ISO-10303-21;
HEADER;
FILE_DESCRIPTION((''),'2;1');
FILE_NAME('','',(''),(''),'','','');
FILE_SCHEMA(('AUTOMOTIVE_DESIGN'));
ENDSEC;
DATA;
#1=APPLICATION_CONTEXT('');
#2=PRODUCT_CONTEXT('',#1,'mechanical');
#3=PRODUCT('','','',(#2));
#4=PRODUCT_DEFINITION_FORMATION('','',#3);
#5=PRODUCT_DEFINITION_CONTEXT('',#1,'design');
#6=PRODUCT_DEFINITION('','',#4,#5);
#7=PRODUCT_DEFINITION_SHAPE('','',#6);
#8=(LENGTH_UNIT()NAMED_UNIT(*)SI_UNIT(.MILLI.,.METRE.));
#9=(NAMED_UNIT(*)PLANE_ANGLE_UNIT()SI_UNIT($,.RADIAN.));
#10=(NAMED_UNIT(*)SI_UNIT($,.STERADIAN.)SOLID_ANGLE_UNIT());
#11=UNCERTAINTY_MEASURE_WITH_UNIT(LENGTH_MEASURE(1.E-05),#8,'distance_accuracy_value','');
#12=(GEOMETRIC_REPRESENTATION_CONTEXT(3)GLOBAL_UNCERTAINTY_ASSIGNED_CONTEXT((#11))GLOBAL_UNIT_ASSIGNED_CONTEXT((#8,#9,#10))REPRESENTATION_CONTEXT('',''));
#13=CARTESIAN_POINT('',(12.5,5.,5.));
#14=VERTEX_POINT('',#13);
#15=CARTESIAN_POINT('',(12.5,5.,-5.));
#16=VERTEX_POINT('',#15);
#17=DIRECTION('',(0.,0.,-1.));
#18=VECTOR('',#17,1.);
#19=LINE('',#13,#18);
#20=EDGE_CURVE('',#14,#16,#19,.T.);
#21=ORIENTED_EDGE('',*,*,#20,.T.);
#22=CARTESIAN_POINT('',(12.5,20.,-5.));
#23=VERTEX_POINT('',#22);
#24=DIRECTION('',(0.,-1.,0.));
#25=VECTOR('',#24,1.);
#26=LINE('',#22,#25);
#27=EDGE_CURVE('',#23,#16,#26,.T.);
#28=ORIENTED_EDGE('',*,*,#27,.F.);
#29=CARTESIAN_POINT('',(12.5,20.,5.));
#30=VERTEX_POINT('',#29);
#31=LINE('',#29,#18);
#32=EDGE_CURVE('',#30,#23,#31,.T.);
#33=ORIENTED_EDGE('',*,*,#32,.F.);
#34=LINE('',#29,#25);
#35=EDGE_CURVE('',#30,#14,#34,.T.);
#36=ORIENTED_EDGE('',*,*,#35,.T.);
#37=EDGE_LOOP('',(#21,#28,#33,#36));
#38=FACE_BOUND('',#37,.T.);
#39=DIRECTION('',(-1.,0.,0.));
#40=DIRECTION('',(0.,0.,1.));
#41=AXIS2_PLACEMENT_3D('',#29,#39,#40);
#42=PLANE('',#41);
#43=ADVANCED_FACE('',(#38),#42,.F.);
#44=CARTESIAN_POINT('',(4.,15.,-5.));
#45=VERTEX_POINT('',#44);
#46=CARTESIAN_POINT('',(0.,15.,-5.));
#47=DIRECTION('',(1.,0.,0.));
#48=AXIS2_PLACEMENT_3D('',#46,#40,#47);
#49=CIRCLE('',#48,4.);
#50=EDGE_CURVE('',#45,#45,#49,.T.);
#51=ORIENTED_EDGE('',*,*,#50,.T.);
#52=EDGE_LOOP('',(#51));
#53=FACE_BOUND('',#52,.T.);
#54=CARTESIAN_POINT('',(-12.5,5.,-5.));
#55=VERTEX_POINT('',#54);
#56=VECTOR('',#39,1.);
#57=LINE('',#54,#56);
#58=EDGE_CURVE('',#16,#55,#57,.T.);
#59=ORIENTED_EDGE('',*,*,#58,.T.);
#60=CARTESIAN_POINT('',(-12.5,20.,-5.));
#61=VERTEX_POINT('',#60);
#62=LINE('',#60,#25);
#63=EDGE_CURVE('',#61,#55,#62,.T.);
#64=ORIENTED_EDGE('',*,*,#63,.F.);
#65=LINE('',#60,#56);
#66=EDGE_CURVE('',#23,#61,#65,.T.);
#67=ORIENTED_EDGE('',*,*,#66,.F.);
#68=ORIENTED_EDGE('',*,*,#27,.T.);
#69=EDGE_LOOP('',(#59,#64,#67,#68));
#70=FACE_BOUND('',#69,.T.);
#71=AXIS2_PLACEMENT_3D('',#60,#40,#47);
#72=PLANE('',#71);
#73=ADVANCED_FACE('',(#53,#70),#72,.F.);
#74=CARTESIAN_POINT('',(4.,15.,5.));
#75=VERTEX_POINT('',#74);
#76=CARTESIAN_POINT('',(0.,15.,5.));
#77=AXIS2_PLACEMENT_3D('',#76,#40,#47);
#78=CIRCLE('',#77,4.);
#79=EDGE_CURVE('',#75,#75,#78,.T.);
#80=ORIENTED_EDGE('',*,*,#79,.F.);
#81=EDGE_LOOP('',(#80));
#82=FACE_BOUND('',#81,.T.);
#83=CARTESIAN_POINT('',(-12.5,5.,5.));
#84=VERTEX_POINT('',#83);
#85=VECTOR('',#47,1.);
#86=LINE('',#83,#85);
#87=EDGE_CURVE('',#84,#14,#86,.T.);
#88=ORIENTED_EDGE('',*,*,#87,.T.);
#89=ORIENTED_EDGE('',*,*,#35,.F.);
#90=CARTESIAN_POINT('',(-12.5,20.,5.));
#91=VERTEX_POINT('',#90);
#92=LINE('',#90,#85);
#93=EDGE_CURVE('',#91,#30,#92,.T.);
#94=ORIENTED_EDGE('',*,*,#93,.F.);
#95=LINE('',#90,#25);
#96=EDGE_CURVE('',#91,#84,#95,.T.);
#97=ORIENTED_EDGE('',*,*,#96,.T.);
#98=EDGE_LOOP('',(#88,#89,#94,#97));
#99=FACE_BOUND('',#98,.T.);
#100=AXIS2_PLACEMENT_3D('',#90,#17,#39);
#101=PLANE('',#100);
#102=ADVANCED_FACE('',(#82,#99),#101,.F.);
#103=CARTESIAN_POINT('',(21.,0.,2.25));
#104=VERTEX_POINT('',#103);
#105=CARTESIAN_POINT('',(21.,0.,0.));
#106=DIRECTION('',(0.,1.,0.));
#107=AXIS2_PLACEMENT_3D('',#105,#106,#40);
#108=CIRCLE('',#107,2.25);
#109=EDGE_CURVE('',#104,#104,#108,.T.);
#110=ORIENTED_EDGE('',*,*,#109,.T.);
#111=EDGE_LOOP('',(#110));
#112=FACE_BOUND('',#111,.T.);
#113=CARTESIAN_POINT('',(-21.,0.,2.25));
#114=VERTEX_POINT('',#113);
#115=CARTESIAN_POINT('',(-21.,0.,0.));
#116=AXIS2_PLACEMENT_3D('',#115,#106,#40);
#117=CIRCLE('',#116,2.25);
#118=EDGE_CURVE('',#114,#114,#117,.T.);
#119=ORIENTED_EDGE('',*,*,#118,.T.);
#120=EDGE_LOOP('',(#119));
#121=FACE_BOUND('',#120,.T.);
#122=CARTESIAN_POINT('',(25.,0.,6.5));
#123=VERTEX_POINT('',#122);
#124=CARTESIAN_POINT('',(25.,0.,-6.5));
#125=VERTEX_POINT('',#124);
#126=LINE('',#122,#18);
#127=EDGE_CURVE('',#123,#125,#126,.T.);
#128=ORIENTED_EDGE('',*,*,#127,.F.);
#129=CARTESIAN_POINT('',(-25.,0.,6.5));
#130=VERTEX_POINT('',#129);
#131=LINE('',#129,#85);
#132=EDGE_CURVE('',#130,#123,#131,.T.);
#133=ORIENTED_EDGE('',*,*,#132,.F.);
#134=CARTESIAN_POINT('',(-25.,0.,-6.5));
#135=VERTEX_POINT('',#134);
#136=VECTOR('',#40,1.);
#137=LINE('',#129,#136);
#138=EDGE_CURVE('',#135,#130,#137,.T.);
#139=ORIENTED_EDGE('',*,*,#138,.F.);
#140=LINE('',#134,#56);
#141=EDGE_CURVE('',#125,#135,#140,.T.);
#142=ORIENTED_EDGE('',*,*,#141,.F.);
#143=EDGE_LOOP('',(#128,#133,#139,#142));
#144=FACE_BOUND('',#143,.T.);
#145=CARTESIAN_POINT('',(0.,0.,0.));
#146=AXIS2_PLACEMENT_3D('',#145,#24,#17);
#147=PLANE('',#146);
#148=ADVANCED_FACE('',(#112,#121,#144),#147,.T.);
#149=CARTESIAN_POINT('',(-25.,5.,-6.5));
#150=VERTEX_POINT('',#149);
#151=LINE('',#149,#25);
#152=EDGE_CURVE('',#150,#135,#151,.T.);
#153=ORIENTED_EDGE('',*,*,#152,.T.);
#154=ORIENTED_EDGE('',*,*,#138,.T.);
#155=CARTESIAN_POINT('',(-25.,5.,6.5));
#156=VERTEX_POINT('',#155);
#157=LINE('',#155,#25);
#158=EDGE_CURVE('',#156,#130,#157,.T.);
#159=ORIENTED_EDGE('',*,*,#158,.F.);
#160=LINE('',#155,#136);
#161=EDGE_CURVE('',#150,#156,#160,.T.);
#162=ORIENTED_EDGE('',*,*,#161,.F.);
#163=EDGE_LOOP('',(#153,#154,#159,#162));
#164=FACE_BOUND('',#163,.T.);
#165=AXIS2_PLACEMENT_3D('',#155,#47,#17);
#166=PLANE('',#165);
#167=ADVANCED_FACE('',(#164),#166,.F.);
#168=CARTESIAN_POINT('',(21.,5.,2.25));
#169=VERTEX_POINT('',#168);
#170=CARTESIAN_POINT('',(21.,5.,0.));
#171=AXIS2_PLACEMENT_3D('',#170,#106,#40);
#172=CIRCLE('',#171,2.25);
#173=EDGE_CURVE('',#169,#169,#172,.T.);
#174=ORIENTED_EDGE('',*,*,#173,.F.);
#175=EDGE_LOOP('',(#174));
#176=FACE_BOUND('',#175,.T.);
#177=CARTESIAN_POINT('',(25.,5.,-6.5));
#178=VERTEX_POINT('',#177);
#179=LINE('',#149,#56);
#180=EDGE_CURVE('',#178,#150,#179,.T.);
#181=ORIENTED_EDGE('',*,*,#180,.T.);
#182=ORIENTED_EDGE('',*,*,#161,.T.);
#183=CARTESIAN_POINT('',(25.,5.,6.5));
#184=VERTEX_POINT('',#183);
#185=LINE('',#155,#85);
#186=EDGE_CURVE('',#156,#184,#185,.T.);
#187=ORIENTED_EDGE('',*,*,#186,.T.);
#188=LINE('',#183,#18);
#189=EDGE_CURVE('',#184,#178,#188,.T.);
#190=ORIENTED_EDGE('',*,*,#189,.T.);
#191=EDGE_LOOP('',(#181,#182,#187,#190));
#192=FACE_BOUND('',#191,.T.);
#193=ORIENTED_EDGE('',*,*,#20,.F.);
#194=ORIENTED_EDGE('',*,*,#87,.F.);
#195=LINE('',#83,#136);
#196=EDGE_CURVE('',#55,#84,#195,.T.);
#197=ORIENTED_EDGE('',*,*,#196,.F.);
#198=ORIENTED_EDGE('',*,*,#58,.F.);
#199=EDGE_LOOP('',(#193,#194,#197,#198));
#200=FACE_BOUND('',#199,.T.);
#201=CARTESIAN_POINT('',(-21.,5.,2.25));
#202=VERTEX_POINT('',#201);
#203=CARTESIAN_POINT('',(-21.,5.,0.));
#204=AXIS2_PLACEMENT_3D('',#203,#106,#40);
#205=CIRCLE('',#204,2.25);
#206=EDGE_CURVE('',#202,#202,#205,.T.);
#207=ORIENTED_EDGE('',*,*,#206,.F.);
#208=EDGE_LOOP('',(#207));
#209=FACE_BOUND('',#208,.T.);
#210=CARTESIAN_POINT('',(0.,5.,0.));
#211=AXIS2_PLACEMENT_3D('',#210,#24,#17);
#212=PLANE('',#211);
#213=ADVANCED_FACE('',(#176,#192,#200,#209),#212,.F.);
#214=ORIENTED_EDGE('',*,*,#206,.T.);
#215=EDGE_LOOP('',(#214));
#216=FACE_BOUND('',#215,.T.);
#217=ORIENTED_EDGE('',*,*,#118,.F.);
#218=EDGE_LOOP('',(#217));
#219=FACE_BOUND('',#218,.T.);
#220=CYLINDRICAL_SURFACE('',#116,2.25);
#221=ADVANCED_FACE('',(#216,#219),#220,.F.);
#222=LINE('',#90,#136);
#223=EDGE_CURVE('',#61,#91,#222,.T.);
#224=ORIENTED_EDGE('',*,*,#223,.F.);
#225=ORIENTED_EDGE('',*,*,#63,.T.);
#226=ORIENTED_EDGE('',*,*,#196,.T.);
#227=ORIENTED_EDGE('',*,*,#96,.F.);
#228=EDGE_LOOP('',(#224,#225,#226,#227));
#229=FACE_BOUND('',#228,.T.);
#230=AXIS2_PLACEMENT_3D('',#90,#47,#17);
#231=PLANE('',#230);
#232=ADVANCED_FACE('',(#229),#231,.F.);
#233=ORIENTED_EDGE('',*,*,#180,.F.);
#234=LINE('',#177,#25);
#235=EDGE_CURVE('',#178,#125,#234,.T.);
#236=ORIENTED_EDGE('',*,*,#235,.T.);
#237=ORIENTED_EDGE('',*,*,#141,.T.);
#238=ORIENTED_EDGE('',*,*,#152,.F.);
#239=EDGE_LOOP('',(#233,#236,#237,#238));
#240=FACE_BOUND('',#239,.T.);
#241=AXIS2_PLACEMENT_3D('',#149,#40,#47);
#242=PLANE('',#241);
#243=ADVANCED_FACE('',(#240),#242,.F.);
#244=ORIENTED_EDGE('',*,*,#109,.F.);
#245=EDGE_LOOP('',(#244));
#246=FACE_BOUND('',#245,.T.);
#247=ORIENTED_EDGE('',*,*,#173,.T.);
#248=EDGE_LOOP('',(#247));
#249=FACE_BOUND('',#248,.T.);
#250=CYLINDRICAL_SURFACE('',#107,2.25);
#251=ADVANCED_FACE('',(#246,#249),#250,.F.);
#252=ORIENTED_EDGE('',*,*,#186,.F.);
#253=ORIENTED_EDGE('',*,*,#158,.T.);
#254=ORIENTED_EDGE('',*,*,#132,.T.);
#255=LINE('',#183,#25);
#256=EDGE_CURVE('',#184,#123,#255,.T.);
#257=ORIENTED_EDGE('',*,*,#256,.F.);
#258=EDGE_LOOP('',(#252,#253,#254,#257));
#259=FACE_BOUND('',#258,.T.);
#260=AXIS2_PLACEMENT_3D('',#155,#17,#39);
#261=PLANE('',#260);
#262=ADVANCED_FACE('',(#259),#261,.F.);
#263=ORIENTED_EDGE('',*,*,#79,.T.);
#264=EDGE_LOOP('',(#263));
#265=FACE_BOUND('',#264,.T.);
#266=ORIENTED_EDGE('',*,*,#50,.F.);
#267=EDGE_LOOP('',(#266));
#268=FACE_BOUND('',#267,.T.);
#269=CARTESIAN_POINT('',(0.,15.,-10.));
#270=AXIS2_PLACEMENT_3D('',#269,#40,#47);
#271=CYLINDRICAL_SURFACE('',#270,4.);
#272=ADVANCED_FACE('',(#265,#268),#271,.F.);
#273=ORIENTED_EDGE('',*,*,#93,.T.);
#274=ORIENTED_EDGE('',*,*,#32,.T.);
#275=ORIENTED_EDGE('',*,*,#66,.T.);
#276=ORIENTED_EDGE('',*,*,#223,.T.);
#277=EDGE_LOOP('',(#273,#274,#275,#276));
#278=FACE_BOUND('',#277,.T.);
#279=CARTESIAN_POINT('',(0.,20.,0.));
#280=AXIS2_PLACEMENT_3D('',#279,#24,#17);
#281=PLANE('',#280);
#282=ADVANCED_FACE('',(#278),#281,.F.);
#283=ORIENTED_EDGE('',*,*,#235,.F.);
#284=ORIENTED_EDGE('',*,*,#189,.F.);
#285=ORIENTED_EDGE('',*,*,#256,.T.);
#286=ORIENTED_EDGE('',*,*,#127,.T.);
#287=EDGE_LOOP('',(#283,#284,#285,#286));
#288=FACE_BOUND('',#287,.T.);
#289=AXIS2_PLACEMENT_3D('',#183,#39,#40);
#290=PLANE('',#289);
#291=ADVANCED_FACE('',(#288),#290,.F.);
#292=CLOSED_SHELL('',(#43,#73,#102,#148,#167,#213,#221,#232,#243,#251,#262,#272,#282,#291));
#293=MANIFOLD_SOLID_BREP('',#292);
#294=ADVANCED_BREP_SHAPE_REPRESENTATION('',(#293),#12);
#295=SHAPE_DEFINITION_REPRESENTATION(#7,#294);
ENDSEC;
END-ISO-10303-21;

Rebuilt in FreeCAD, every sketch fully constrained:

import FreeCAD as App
import Part
import Sketcher


def add_polygon(sketch, points):
    """Adds a closed chain of lines whose ends are joined by coincident constraints."""
    first, n = sketch.GeometryCount, len(points)
    for a, b in zip(points, points[1:] + points[:1]):
        sketch.addGeometry(Part.LineSegment(App.Vector(*a, 0), App.Vector(*b, 0)), False)
    for i in range(n):
        sketch.addConstraint(Sketcher.Constraint("Coincident", first + i, 2, first + (i + 1) % n, 1))

doc = App.newDocument("Part")
body = doc.addObject("PartDesign::Body", "Body")

# Sketch on XZ plane
sketch1 = doc.addObject("Sketcher::SketchObject", "Sketch")
body.addObject(sketch1)
sketch1.AttachmentSupport = (doc.XZ_Plane, [""])
sketch1.MapMode = "FlatFace"
add_polygon(sketch1, [(-25, -6.5), (-25, 6.5), (25, 6.5), (25, -6.5)])  # lines 0-3
sketch1.addConstraint([
    Sketcher.Constraint("Vertical", 0),
    Sketcher.Constraint("Horizontal", 1),
    Sketcher.Constraint("Vertical", 2),
    Sketcher.Constraint("Horizontal", 3),
    Sketcher.Constraint("Symmetric", 0, 2, 2, 2, -1, 1),
    Sketcher.Constraint("DistanceX", 1, 1, 1, 2, 50.0),
    Sketcher.Constraint("DistanceY", 0, 1, 0, 2, 13.0),
])
pad1 = doc.addObject("PartDesign::Pad", "Pad")
body.addObject(pad1)
pad1.Profile = sketch1
pad1.Length = 5
pad1.Reversed = True

# Sketch on XZ plane
sketch2 = doc.addObject("Sketcher::SketchObject", "Sketch001")
body.addObject(sketch2)
sketch2.AttachmentSupport = (doc.XZ_Plane, [""])
sketch2.MapMode = "FlatFace"
sketch2.AttachmentOffset = App.Placement(App.Vector(0, 0, -5), App.Rotation())
sketch2.addGeometry([
    Part.Circle(App.Vector(-21, 0, 0), App.Vector(0, 0, 1), 2.25),
    Part.Circle(App.Vector(21, 0, 0), App.Vector(0, 0, 1), 2.25),
], False)
sketch2.addConstraint([
    Sketcher.Constraint("Equal", 0, 1),
    Sketcher.Constraint("Symmetric", 0, 3, 1, 3, -1, 1),
    Sketcher.Constraint("PointOnObject", 0, 3, -1),
    Sketcher.Constraint("Diameter", 0, 4.5),
    Sketcher.Constraint("DistanceX", 0, 3, -1, 1, 21.0),
])
pocket1 = doc.addObject("PartDesign::Pocket", "Pocket")
body.addObject(pocket1)
pocket1.Profile = sketch2
pocket1.Length = 5
pocket1.Reversed = True

# Sketch on XZ plane
sketch3 = doc.addObject("Sketcher::SketchObject", "Sketch002")
body.addObject(sketch3)
sketch3.AttachmentSupport = (doc.XZ_Plane, [""])
sketch3.MapMode = "FlatFace"
sketch3.AttachmentOffset = App.Placement(App.Vector(0, 0, -5), App.Rotation())
add_polygon(sketch3, [(-12.5, -5), (-12.5, 5), (12.5, 5), (12.5, -5)])  # lines 0-3
sketch3.addConstraint([
    Sketcher.Constraint("Vertical", 0),
    Sketcher.Constraint("Horizontal", 1),
    Sketcher.Constraint("Vertical", 2),
    Sketcher.Constraint("Horizontal", 3),
    Sketcher.Constraint("Symmetric", 0, 2, 2, 2, -1, 1),
    Sketcher.Constraint("DistanceX", 1, 1, 1, 2, 25.0),
    Sketcher.Constraint("DistanceY", 0, 1, 0, 2, 10.0),
])
pad2 = doc.addObject("PartDesign::Pad", "Pad001")
body.addObject(pad2)
pad2.Profile = sketch3
pad2.Length = 15
pad2.Reversed = True

# Sketch on XY plane
sketch4 = doc.addObject("Sketcher::SketchObject", "Sketch003")
body.addObject(sketch4)
sketch4.AttachmentSupport = (doc.XY_Plane, [""])
sketch4.MapMode = "FlatFace"
sketch4.AttachmentOffset = App.Placement(App.Vector(0, 0, 5), App.Rotation())
sketch4.addGeometry(Part.Circle(App.Vector(0, 15, 0), App.Vector(0, 0, 1), 4), False)
sketch4.addConstraint([
    Sketcher.Constraint("PointOnObject", 0, 3, -2),
    Sketcher.Constraint("Diameter", 0, 8.0),
    Sketcher.Constraint("DistanceY", -1, 1, 0, 3, 15.0),
])
pocket2 = doc.addObject("PartDesign::Pocket", "Pocket001")
body.addObject(pocket2)
pocket2.Profile = sketch4
pocket2.Length = 15

doc.recompute()
